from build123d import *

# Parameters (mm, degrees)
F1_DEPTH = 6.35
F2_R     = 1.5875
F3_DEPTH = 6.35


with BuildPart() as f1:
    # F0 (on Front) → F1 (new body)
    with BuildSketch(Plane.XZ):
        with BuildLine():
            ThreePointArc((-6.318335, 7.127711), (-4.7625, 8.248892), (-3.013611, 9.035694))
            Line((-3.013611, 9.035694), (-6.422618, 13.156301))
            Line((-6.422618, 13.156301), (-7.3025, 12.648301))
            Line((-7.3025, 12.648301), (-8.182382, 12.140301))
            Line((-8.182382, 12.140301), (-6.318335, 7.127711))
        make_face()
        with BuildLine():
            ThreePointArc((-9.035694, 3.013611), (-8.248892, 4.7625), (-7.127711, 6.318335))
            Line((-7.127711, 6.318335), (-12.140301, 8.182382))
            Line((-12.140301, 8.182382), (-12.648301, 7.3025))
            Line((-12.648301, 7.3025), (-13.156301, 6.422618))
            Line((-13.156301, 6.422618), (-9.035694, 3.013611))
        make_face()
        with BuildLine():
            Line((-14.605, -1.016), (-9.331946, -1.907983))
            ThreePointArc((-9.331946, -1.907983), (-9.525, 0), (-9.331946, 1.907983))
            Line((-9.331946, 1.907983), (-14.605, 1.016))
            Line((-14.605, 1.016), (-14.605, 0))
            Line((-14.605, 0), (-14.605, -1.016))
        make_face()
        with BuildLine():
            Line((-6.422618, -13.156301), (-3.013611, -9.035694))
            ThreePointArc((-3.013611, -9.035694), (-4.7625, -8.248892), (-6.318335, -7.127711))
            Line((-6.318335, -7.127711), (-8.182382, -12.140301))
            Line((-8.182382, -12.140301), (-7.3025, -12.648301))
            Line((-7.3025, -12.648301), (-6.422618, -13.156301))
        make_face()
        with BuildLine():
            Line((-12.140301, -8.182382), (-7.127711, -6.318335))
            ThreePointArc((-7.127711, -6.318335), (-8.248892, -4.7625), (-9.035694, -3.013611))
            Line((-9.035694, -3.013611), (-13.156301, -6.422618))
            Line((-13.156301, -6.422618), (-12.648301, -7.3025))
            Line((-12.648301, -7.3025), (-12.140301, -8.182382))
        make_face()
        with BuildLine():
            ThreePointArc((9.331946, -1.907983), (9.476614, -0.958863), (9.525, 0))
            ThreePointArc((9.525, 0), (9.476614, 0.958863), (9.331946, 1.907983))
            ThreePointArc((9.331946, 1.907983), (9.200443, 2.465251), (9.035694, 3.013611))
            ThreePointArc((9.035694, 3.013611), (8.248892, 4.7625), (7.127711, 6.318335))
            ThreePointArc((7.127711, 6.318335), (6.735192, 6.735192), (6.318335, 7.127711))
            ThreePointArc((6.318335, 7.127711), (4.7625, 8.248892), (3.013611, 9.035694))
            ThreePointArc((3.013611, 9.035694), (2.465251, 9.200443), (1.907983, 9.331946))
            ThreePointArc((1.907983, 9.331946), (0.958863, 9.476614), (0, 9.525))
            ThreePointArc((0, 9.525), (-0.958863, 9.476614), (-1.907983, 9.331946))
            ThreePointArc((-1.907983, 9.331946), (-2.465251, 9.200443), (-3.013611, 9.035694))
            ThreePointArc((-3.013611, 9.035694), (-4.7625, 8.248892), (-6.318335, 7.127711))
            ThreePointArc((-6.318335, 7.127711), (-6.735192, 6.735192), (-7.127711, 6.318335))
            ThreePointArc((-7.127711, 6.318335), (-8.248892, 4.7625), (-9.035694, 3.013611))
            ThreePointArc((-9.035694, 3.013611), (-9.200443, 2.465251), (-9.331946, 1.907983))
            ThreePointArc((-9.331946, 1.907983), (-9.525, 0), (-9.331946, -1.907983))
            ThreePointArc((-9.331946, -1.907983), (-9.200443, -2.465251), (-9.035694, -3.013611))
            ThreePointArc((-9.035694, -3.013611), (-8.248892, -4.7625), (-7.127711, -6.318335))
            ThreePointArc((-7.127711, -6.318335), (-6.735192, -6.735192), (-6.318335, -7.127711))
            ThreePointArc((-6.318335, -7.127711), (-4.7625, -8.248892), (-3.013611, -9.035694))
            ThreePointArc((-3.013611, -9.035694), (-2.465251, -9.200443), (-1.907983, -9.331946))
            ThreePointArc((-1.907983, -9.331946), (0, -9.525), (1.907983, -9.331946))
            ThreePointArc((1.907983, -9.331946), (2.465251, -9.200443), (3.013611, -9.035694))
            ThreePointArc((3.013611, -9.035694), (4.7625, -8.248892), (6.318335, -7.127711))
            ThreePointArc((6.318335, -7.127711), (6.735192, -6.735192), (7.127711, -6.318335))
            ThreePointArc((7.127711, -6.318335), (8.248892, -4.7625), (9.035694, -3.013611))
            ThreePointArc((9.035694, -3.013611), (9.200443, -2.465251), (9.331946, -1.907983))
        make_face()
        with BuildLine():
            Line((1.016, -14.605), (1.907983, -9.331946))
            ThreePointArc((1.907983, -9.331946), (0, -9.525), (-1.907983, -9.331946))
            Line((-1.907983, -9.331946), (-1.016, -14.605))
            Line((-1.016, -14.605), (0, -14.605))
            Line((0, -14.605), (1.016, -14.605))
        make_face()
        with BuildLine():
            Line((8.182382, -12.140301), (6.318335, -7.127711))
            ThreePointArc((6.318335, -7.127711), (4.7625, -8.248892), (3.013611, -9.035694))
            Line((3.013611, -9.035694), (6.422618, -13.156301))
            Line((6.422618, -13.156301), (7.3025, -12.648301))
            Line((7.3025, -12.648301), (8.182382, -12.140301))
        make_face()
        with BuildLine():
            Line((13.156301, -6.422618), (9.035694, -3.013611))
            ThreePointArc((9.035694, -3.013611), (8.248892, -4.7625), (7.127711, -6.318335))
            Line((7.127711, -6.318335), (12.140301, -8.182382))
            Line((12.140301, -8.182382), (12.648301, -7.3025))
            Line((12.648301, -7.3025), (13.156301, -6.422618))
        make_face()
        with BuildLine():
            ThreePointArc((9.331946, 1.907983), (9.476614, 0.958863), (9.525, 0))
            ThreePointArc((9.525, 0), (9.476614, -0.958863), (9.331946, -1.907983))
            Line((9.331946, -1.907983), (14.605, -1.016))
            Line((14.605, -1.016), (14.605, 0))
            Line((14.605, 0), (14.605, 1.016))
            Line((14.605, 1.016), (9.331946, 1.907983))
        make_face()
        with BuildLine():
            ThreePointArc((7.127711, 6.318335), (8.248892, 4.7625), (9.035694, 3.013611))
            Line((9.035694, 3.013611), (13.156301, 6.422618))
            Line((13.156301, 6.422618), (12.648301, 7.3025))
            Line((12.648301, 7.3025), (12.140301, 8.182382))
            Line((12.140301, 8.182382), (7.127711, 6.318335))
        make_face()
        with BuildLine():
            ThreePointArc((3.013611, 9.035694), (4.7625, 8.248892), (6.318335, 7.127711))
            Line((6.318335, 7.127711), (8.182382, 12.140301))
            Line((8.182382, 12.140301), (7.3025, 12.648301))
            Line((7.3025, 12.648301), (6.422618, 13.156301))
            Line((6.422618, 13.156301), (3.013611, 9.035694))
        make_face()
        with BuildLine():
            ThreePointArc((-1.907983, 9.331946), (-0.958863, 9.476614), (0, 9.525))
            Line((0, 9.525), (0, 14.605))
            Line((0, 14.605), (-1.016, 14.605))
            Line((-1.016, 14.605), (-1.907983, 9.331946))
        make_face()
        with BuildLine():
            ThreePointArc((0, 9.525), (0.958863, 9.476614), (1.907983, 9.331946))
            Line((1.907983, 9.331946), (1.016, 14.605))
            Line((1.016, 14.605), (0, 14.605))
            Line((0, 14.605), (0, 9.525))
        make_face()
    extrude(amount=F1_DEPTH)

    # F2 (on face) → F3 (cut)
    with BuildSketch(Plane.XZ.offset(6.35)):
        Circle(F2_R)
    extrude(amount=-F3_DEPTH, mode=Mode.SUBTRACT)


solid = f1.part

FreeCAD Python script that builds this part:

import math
import FreeCAD as App
import Part
import Sketcher
Q = App.Units.Quantity

doc = App.newDocument("Part")
body = doc.addObject("PartDesign::Body", "Body")

# Sketch on XZ plane
sketch1 = doc.addObject("Sketcher::SketchObject", "Sketch")
body.addObject(sketch1)
sketch1.AttachmentSupport = (doc.XZ_Plane, [""])
sketch1.MapMode = "FlatFace"
sketch1.addGeometry([
    Part.LineSegment(App.Vector(-3.013611, 9.035694, 0), App.Vector(-6.422618, 13.156301, 0)),  # 0
    Part.LineSegment(App.Vector(-6.422618, 13.156301, 0), App.Vector(-8.182382, 12.140301, 0)),  # 1
    Part.LineSegment(App.Vector(-8.182382, 12.140301, 0), App.Vector(-6.318335, 7.127711, 0)),  # 2
    Part.ArcOfCircle(Part.Circle(App.Vector(-0.000026, 0.000026, 0), App.Vector(0, 0, 1), 9.524963), math.radians(131.555261), math.radians(138.444739)),  # 3
    Part.LineSegment(App.Vector(-7.127711, 6.318335, 0), App.Vector(-12.140301, 8.182382, 0)),  # 4
    Part.LineSegment(App.Vector(-12.140301, 8.182382, 0), App.Vector(-13.156301, 6.422618, 0)),  # 5
    Part.LineSegment(App.Vector(-13.156301, 6.422618, 0), App.Vector(-9.035694, 3.013611, 0)),  # 6
    Part.ArcOfCircle(Part.Circle(App.Vector(0.000068, -0.000017, 0), App.Vector(0, 0, 1), 9.525069), math.radians(161.555306), math.radians(168.444706)),  # 7
    Part.LineSegment(App.Vector(-9.331946, 1.907983, 0), App.Vector(-14.605, 1.016, 0)),  # 8
    Part.LineSegment(App.Vector(-14.605, 1.016, 0), App.Vector(-14.605, -1.016, 0)),  # 9
    Part.LineSegment(App.Vector(-14.605, -1.016, 0), App.Vector(-9.331946, -1.907983, 0)),  # 10
    Part.ArcOfCircle(Part.Circle(App.Vector(0.000068, 0.000017, 0), App.Vector(0, 0, 1), 9.525069), math.radians(-168.444706), math.radians(-161.555306)),  # 11
    Part.LineSegment(App.Vector(-9.035694, -3.013611, 0), App.Vector(-13.156301, -6.422618, 0)),  # 12
    Part.LineSegment(App.Vector(-13.156301, -6.422618, 0), App.Vector(-12.140301, -8.182382, 0)),  # 13
    Part.LineSegment(App.Vector(-12.140301, -8.182382, 0), App.Vector(-7.127711, -6.318335, 0)),  # 14
    Part.ArcOfCircle(Part.Circle(App.Vector(-0.000026, -0.000026, 0), App.Vector(0, 0, 1), 9.524963), math.radians(-138.444739), math.radians(-131.555261)),  # 15
    Part.LineSegment(App.Vector(-6.318335, -7.127711, 0), App.Vector(-8.182382, -12.140301, 0)),  # 16
    Part.LineSegment(App.Vector(-8.182382, -12.140301, 0), App.Vector(-6.422618, -13.156301, 0)),  # 17
    Part.LineSegment(App.Vector(-6.422618, -13.156301, 0), App.Vector(-3.013611, -9.035694, 0)),  # 18
    Part.ArcOfCircle(Part.Circle(App.Vector(0.000017, 0.000068, 0), App.Vector(0, 0, 1), 9.525069), math.radians(-108.444694), math.radians(-101.555294)),  # 19
    Part.LineSegment(App.Vector(-1.907983, -9.331946, 0), App.Vector(-1.016, -14.605, 0)),  # 20
    Part.LineSegment(App.Vector(-1.016, -14.605, 0), App.Vector(1.016, -14.605, 0)),  # 21
    Part.LineSegment(App.Vector(1.016, -14.605, 0), App.Vector(1.907983, -9.331946, 0)),  # 22
    Part.ArcOfCircle(Part.Circle(App.Vector(-0.000017, 0.000068, 0), App.Vector(0, 0, 1), 9.525069), math.radians(-78.444706), math.radians(-71.555306)),  # 23
    Part.LineSegment(App.Vector(3.013611, -9.035694, 0), App.Vector(6.422618, -13.156301, 0)),  # 24
    Part.LineSegment(App.Vector(6.422618, -13.156301, 0), App.Vector(8.182382, -12.140301, 0)),  # 25
    Part.LineSegment(App.Vector(8.182382, -12.140301, 0), App.Vector(6.318335, -7.127711, 0)),  # 26
    Part.ArcOfCircle(Part.Circle(App.Vector(0.000026, -0.000026, 0), App.Vector(0, 0, 1), 9.524963), math.radians(-48.444739), math.radians(-41.555261)),  # 27
    Part.LineSegment(App.Vector(7.127711, -6.318335, 0), App.Vector(12.140301, -8.182382, 0)),  # 28
    Part.LineSegment(App.Vector(12.140301, -8.182382, 0), App.Vector(13.156301, -6.422618, 0)),  # 29
    Part.LineSegment(App.Vector(13.156301, -6.422618, 0), App.Vector(9.035694, -3.013611, 0)),  # 30
    Part.ArcOfCircle(Part.Circle(App.Vector(-0.000068, 0.000017, 0), App.Vector(0, 0, 1), 9.525069), math.radians(-18.444694), math.radians(-11.555294)),  # 31
    Part.LineSegment(App.Vector(9.331946, -1.907983, 0), App.Vector(14.605, -1.016, 0)),  # 32
    Part.LineSegment(App.Vector(14.605, -1.016, 0), App.Vector(14.605, 1.016, 0)),  # 33
    Part.LineSegment(App.Vector(14.605, 1.016, 0), App.Vector(9.331946, 1.907983, 0)),  # 34
    Part.ArcOfCircle(Part.Circle(App.Vector(-0.000068, -0.000017, 0), App.Vector(0, 0, 1), 9.525069), math.radians(11.555294), math.radians(18.444694)),  # 35
    Part.LineSegment(App.Vector(9.035694, 3.013611, 0), App.Vector(13.156301, 6.422618, 0)),  # 36
    Part.LineSegment(App.Vector(13.156301, 6.422618, 0), App.Vector(12.140301, 8.182382, 0)),  # 37
    Part.LineSegment(App.Vector(12.140301, 8.182382, 0), App.Vector(7.127711, 6.318335, 0)),  # 38
    Part.ArcOfCircle(Part.Circle(App.Vector(0.000026, 0.000026, 0), App.Vector(0, 0, 1), 9.524963), math.radians(41.555261), math.radians(48.444739)),  # 39
    Part.LineSegment(App.Vector(6.318335, 7.127711, 0), App.Vector(8.182382, 12.140301, 0)),  # 40
    Part.LineSegment(App.Vector(8.182382, 12.140301, 0), App.Vector(6.422618, 13.156301, 0)),  # 41
    Part.LineSegment(App.Vector(6.422618, 13.156301, 0), App.Vector(3.013611, 9.035694, 0)),  # 42
    Part.ArcOfCircle(Part.Circle(App.Vector(-0.000017, -0.000068, 0), App.Vector(0, 0, 1), 9.525069), math.radians(71.555306), math.radians(78.444706)),  # 43
    Part.LineSegment(App.Vector(1.907983, 9.331946, 0), App.Vector(1.016, 14.605, 0)),  # 44
    Part.LineSegment(App.Vector(1.016, 14.605, 0), App.Vector(-1.016, 14.605, 0)),  # 45
    Part.LineSegment(App.Vector(-1.016, 14.605, 0), App.Vector(-1.907983, 9.331946, 0)),  # 46
    Part.ArcOfCircle(Part.Circle(App.Vector(0.000017, -0.000068, 0), App.Vector(0, 0, 1), 9.525069), math.radians(101.555294), math.radians(108.444694)),  # 47
], False)
sketch1.addConstraint([
    Sketcher.Constraint("Coincident", 0, 2, 1, 1),
    Sketcher.Constraint("Coincident", 1, 2, 2, 1),
    Sketcher.Constraint("Coincident", 2, 2, 3, 1),
    Sketcher.Constraint("Coincident", 3, 2, 4, 1),
    Sketcher.Constraint("Coincident", 4, 2, 5, 1),
    Sketcher.Constraint("Coincident", 5, 2, 6, 1),
    Sketcher.Constraint("Coincident", 6, 2, 7, 1),
    Sketcher.Constraint("Coincident", 7, 2, 8, 1),
    Sketcher.Constraint("Coincident", 8, 2, 9, 1),
    Sketcher.Constraint("Coincident", 9, 2, 10, 1),
    Sketcher.Constraint("Coincident", 10, 2, 11, 1),
    Sketcher.Constraint("Coincident", 11, 2, 12, 1),
    Sketcher.Constraint("Coincident", 12, 2, 13, 1),
    Sketcher.Constraint("Coincident", 13, 2, 14, 1),
    Sketcher.Constraint("Coincident", 14, 2, 15, 1),
    Sketcher.Constraint("Coincident", 15, 2, 16, 1),
    Sketcher.Constraint("Coincident", 16, 2, 17, 1),
    Sketcher.Constraint("Coincident", 17, 2, 18, 1),
    Sketcher.Constraint("Coincident", 18, 2, 19, 1),
    Sketcher.Constraint("Coincident", 19, 2, 20, 1),
    Sketcher.Constraint("Coincident", 20, 2, 21, 1),
    Sketcher.Constraint("Coincident", 21, 2, 22, 1),
    Sketcher.Constraint("Coincident", 22, 2, 23, 1),
    Sketcher.Constraint("Coincident", 23, 2, 24, 1),
    Sketcher.Constraint("Coincident", 24, 2, 25, 1),
    Sketcher.Constraint("Coincident", 25, 2, 26, 1),
    Sketcher.Constraint("Coincident", 26, 2, 27, 1),
    Sketcher.Constraint("Coincident", 27, 2, 28, 1),
    Sketcher.Constraint("Coincident", 28, 2, 29, 1),
    Sketcher.Constraint("Coincident", 29, 2, 30, 1),
    Sketcher.Constraint("Coincident", 30, 2, 31, 1),
    Sketcher.Constraint("Coincident", 31, 2, 32, 1),
    Sketcher.Constraint("Coincident", 32, 2, 33, 1),
    Sketcher.Constraint("Coincident", 33, 2, 34, 1),
    Sketcher.Constraint("Coincident", 34, 2, 35, 1),
    Sketcher.Constraint("Coincident", 35, 2, 36, 1),
    Sketcher.Constraint("Coincident", 36, 2, 37, 1),
    Sketcher.Constraint("Coincident", 37, 2, 38, 1),
    Sketcher.Constraint("Coincident", 38, 2, 39, 1),
    Sketcher.Constraint("Coincident", 39, 2, 40, 1),
    Sketcher.Constraint("Coincident", 40, 2, 41, 1),
    Sketcher.Constraint("Coincident", 41, 2, 42, 1),
    Sketcher.Constraint("Coincident", 42, 2, 43, 1),
    Sketcher.Constraint("Coincident", 43, 2, 44, 1),
    Sketcher.Constraint("Coincident", 44, 2, 45, 1),
    Sketcher.Constraint("Coincident", 45, 2, 46, 1),
    Sketcher.Constraint("Coincident", 46, 2, 47, 1),
    Sketcher.Constraint("Coincident", 47, 2, 0, 1),
    Sketcher.Constraint("Vertical", 9),
    Sketcher.Constraint("Horizontal", 21),
    Sketcher.Constraint("Vertical", 33),
    Sketcher.Constraint("Horizontal", 45),
    Sketcher.Constraint("Equal", 7, 11),
    Sketcher.Constraint("Equal", 3, 15),
    Sketcher.Constraint("Equal", 11, 19),
    Sketcher.Constraint("Equal", 19, 23),
    Sketcher.Constraint("Equal", 15, 27),
    Sketcher.Constraint("Equal", 23, 31),
    Sketcher.Constraint("Equal", 31, 35),
    Sketcher.Constraint("Equal", 27, 39),
    Sketcher.Constraint("Equal", 35, 43),
    Sketcher.Constraint("Equal", 43, 47),
    Sketcher.Constraint("Symmetric", 3, 3, 27, 3, -1, 1),
    Sketcher.Constraint("Symmetric", 7, 3, 31, 3, -1, 1),
    Sketcher.Constraint("Symmetric", 11, 3, 35, 3, -1, 1),
    Sketcher.Constraint("Symmetric", 15, 3, 39, 3, -1, 1),
    Sketcher.Constraint("Symmetric", 19, 3, 43, 3, -1, 1),
    Sketcher.Constraint("Symmetric", 23, 3, 47, 3, -1, 1),
    Sketcher.Constraint("Symmetric", 0, 2, 24, 2, -1, 1),
    Sketcher.Constraint("Symmetric", 1, 2, 25, 2, -1, 1),
    Sketcher.Constraint("Symmetric", 4, 2, 28, 2, -1, 1),
    Sketcher.Constraint("Symmetric", 5, 2, 29, 2, -1, 1),
    Sketcher.Constraint("Symmetric", 8, 2, 32, 2, -1, 1),
    Sketcher.Constraint("Symmetric", 12, 2, 36, 2, -1, 1),
    Sketcher.Constraint("Symmetric", 13, 2, 37, 2, -1, 1),
    Sketcher.Constraint("Symmetric", 16, 2, 40, 2, -1, 1),
    Sketcher.Constraint("Symmetric", 17, 2, 41, 2, -1, 1),
    Sketcher.Constraint("Symmetric", 20, 2, 44, 2, -1, 1),
    Sketcher.Constraint("Symmetric", 19, 3, 23, 3, -2),
    Sketcher.Constraint("Symmetric", 15, 3, 27, 3, -2),
    Sketcher.Constraint("Symmetric", 11, 3, 31, 3, -2),
    Sketcher.Constraint("Symmetric", 17, 2, 24, 2, -2),
    Sketcher.Constraint("Symmetric", 16, 2, 25, 2, -2),
    Sketcher.Constraint("Symmetric", 13, 2, 28, 2, -2),
    Sketcher.Constraint("Symmetric", 12, 2, 29, 2, -2),
    Sketcher.Constraint("Perpendicular", 0, 12),
    Sketcher.Constraint("Perpendicular", 1, 13),
    Sketcher.Constraint("Perpendicular", 2, 14),
    Sketcher.Constraint("Perpendicular", 4, 16),
    Sketcher.Constraint("Perpendicular", 6, 18),
    Sketcher.Constraint("Perpendicular", 8, 20),
    Sketcher.Constraint("Perpendicular", 10, 22),
    Sketcher.Constraint("Perpendicular", 12, 24),
    Sketcher.Constraint("Perpendicular", 14, 26),
    Sketcher.Constraint("Perpendicular", 16, 28),
    Sketcher.Constraint("Perpendicular", 18, 30),
    Sketcher.Constraint("Perpendicular", 20, 32),
    Sketcher.Constraint("Perpendicular", 22, 34),
    Sketcher.Constraint("Perpendicular", 24, 36),
    Sketcher.Constraint("Perpendicular", 26, 38),
    Sketcher.Constraint("Perpendicular", 28, 40),
    Sketcher.Constraint("Perpendicular", 30, 42),
    Sketcher.Constraint("Perpendicular", 32, 44),
    Sketcher.Constraint("Perpendicular", 34, 46),
    Sketcher.Constraint("Horizontal", 19, 2, 22, 2),
    Sketcher.Constraint("Horizontal", 18, 2, 23, 2),
    Sketcher.Constraint("Horizontal", 15, 2, 26, 2),
    Sketcher.Constraint("Horizontal", 10, 2, 31, 2),
    Sketcher.Constraint("Horizontal", 9, 2, 32, 2),
    Sketcher.Constraint("Horizontal", 8, 2, 33, 2),
    Sketcher.Constraint("Horizontal", 43, 2, 46, 2),
    Sketcher.Constraint("Equal", 45, 9),
    Sketcher.Constraint("Equal", 0, 2),
    Sketcher.Constraint("Equal", 2, 4),
    Sketcher.Constraint("Equal", 1, 5),
    Sketcher.Constraint("Equal", 4, 6),
    Sketcher.Constraint("Equal", 6, 8),
    Sketcher.Constraint("Equal", 18, 20),
    Sketcher.Constraint("Angle", 1, Q("-150.000005 deg")),
    Sketcher.Constraint("DistanceX", 21, 1, 21, 2, Q("0.08 in")),
    Sketcher.Constraint("Distance", 1, Q("0.08 in")),
    Sketcher.Constraint("DistanceX", 8, 2, -1, 1, Q("0.575 in")),
    Sketcher.Constraint("DistanceY", 20, 2, -1, 1, Q("0.575 in")),
    Sketcher.Constraint("Radius", 7, 9.525069),
    Sketcher.Constraint("Radius", 3, 9.524963),
    Sketcher.Constraint("DistanceY", -1, 1, 0, 2, 13.156301),
    Sketcher.Constraint("DistanceX", 4, 2, -1, 1, 12.140301),
    Sketcher.Constraint("DistanceX", 0, 2, 23, 3, 6.422601),
    Sketcher.Constraint("DistanceX", 1, 2, 19, 3, 8.182399),
    Sketcher.Constraint("DistanceY", 6, 2, 2, 2, 4.1141),
    Sketcher.Constraint("DistanceY", 7, 2, 4, 2, 6.274399),
    Sketcher.Constraint("DistanceY", 12, 2, 7, 2, 8.330601),
    Sketcher.Constraint("DistanceY", -1, 1, 2, 2, 7.127711),
])
pad1 = doc.addObject("PartDesign::Pad", "Pad")
body.addObject(pad1)
pad1.Profile = sketch1
pad1.Length = Q("0.25 in")

# Sketch on XZ plane
sketch2 = doc.addObject("Sketcher::SketchObject", "Sketch001")
body.addObject(sketch2)
sketch2.AttachmentSupport = (doc.XZ_Plane, [""])
sketch2.MapMode = "FlatFace"
sketch2.AttachmentOffset = App.Placement(App.Vector(0, 0, 0.25 * 25.4), App.Rotation())
sketch2.addGeometry(Part.Circle(App.Vector(0, 0, 0), App.Vector(0, 0, 1), 1.6), False)
sketch2.addConstraint([
    Sketcher.Constraint("Coincident", 0, 3, -1, 1),
    Sketcher.Constraint("Diameter", 0, Q("0.125 in")),
])
pocket1 = doc.addObject("PartDesign::Pocket", "Pocket")
body.addObject(pocket1)
pocket1.Profile = sketch2
pocket1.Length = Q("0.25 in")

doc.recompute()
